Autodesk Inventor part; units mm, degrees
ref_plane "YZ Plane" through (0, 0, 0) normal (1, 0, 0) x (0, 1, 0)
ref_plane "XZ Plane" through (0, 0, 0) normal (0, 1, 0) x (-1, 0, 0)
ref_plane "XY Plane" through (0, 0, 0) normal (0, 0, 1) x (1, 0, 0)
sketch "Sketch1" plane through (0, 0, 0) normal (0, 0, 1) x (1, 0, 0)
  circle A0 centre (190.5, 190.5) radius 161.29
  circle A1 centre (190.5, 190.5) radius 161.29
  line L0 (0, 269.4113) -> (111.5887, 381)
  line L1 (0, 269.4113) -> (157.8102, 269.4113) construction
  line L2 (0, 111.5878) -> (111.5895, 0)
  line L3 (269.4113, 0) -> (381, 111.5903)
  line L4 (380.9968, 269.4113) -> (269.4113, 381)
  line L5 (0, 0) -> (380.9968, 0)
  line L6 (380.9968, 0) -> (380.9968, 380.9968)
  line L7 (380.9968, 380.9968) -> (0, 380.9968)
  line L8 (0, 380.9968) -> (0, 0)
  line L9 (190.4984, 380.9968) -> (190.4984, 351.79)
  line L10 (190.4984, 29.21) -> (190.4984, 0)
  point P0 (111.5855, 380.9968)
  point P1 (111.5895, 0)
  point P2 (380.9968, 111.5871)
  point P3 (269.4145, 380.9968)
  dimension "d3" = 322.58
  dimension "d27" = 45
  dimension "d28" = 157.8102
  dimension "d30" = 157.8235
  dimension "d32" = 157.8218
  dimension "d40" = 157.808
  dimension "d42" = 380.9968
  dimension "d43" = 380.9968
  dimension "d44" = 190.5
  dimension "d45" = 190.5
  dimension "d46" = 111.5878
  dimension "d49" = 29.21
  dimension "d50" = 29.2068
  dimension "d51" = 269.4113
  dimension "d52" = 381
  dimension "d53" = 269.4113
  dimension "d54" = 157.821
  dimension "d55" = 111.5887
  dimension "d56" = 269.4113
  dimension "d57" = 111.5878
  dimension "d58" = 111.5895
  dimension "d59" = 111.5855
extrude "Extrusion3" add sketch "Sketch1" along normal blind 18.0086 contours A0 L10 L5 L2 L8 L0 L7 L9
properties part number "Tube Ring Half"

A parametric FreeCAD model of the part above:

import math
import FreeCAD as App
import Part
import Sketcher
from FreeCAD import Vector
Q = App.Units.Quantity

doc = App.newDocument("Part")
body = doc.addObject("PartDesign::Body", "Body")

# Sketch on XY plane
sketch1 = body.newObject("Sketcher::SketchObject", "Sketch")
sketch1.AttachmentSupport = (doc.getObject("XY_Plane"), [""])
sketch1.MapMode = "FlatFace"
sketch1.addGeometry([
    Part.ArcOfCircle(Part.Circle(Vector(190, 190, 0), Vector(0, 0, 1), 161), math.radians(90), math.radians(270)),  # 0
    Part.LineSegment(Vector(190, 352, 0), Vector(190, 381, 0)),  # 1
    Part.LineSegment(Vector(190, 381, 0), Vector(112, 381, 0)),  # 2
    Part.LineSegment(Vector(112, 381, 0), Vector(0, 269, 0)),  # 3
    Part.LineSegment(Vector(0, 269, 0), Vector(0, 112, 0)),  # 4
    Part.LineSegment(Vector(0, 112, 0), Vector(112, 0, 0)),  # 5
    Part.LineSegment(Vector(112, 0, 0), Vector(190, 0, 0)),  # 6
    Part.LineSegment(Vector(190, 0, 0), Vector(190, 29, 0)),  # 7
], False)
sketch1.addConstraint([
    Sketcher.Constraint("Coincident", 0, 1, 1, 1),
    Sketcher.Constraint("Coincident", 1, 2, 2, 1),
    Sketcher.Constraint("Coincident", 2, 2, 3, 1),
    Sketcher.Constraint("Coincident", 3, 2, 4, 1),
    Sketcher.Constraint("Coincident", 4, 2, 5, 1),
    Sketcher.Constraint("Coincident", 5, 2, 6, 1),
    Sketcher.Constraint("Coincident", 6, 2, 7, 1),
    Sketcher.Constraint("Coincident", 7, 2, 0, 2),
    Sketcher.Constraint("Vertical", 1),
    Sketcher.Constraint("Horizontal", 2),
    Sketcher.Constraint("Vertical", 4),
    Sketcher.Constraint("Horizontal", 6),
    Sketcher.Constraint("Vertical", 7),
    Sketcher.Constraint("PointOnObject", 3, 2, -2),
    Sketcher.Constraint("PointOnObject", 5, 2, -1),
    Sketcher.Constraint("Perpendicular", 3, 5),
    Sketcher.Constraint("Vertical", 1, 2, 6, 2),
    Sketcher.Constraint("Radius", 0, Q("6.35 in")),
    Sketcher.Constraint("Angle", 5, Q("-44.9996 deg")),
    Sketcher.Constraint("DistanceY", 7, 1, 7, 2, Q("1.15 in")),
    Sketcher.Constraint("DistanceX", -1, 1, 0, 3, Q("7.5 in")),
    Sketcher.Constraint("Distance", 5, Q("6.213 in")),
    Sketcher.Constraint("DistanceY", 1, 1, 1, 2, 29.2068),
    Sketcher.Constraint("DistanceY", 4, 2, 4, 1, 157.8235),
    Sketcher.Constraint("DistanceX", 2, 2, 2, 1, Q("3.1068 in")),
])
pad1 = body.newObject("PartDesign::Pad", "Pad")
pad1.Profile = sketch1
pad1.Length = Q("0.709 in")

doc.recompute()
